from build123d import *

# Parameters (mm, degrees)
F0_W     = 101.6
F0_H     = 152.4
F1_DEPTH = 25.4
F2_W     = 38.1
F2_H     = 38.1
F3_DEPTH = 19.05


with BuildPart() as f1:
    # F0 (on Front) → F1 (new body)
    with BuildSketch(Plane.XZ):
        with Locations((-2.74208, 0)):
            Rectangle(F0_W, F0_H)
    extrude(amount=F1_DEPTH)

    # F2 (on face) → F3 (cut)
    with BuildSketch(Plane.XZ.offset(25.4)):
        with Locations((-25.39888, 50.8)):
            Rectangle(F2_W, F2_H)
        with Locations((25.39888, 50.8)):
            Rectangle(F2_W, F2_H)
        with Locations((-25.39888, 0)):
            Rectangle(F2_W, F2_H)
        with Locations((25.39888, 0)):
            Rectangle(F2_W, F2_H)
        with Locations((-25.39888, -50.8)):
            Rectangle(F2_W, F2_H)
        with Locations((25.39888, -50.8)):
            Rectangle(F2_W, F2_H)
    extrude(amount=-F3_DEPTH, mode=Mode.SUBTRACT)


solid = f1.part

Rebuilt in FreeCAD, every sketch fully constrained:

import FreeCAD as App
import Part
import Sketcher
Q = App.Units.Quantity


def add_polygon(sketch, points):
    """Adds a closed chain of lines whose ends are joined by coincident constraints."""
    first, n = sketch.GeometryCount, len(points)
    for a, b in zip(points, points[1:] + points[:1]):
        sketch.addGeometry(Part.LineSegment(App.Vector(*a, 0), App.Vector(*b, 0)), False)
    for i in range(n):
        sketch.addConstraint(Sketcher.Constraint("Coincident", first + i, 2, first + (i + 1) % n, 1))

doc = App.newDocument("Part")
params = doc.addObject("Spreadsheet::Sheet", "Params")
for row, (alias, value) in enumerate([
    ("sketch1_width", "4 in"),
    ("sketch1_height", "6 in"),
    ("pad1_length", "1 in"),
    ("sketch2_width", "1.5 in"),
    ("pocket1_length", "0.75 in"),
], start=1):
    params.set(f"A{row}", alias)
    params.set(f"B{row}", "=" + value)
    params.setAlias(f"B{row}", alias)

body = doc.addObject("PartDesign::Body", "Body")

# Sketch on XZ plane
sketch1 = body.newObject("Sketcher::SketchObject", "Sketch")
sketch1.AttachmentSupport = (doc.getObject("XZ_Plane"), [""])
sketch1.MapMode = "FlatFace"
add_polygon(sketch1, [(-54, 76), (-54, -76), (48, -76), (48, 76)])  # lines 0-3
sketch1.addConstraint([
    Sketcher.Constraint("Vertical", 0),
    Sketcher.Constraint("Horizontal", 1),
    Sketcher.Constraint("Vertical", 2),
    Sketcher.Constraint("Horizontal", 3),
    Sketcher.Constraint("DistanceX", 1, 1, 1, 2, Q("4 in")),
    Sketcher.Constraint("DistanceY", 0, 2, 0, 1, Q("6 in")),
    Sketcher.Constraint("DistanceY", 0, 2, -1, 1, Q("3 in")),
    Sketcher.Constraint("DistanceX", 0, 2, -1, 1, Q("53.54208 mm")),
])
sketch1.setExpression("Constraints[8]", "Params.sketch1_width")
sketch1.setExpression("Constraints[9]", "Params.sketch1_height")
pad1 = body.newObject("PartDesign::Pad", "Pad")
pad1.Profile = sketch1
pad1.setExpression("Length", "Params.pad1_length")

# Sketch on XZ plane
sketch2 = body.newObject("Sketcher::SketchObject", "Sketch001")
sketch2.AttachmentSupport = (doc.getObject("XZ_Plane"), [""])
sketch2.MapMode = "FlatFace"
sketch2.AttachmentOffset = App.Placement(App.Vector(0, 0, 1 * 25.4), App.Rotation())
add_polygon(sketch2, [(-44, 70), (-44, 32), (-6, 32), (-6, 70)])  # lines 0-3
add_polygon(sketch2, [(6, 70), (6, 32), (44, 32), (44, 70)])  # lines 4-7
add_polygon(sketch2, [(-44, 19), (-44, -19), (-6, -19), (-6, 19)])  # lines 8-11
add_polygon(sketch2, [(6, 19), (6, -19), (44, -19), (44, 19)])  # lines 12-15
add_polygon(sketch2, [(-44, -32), (-44, -70), (-6, -70), (-6, -32)])  # lines 16-19
add_polygon(sketch2, [(6, -32), (6, -70), (44, -70), (44, -32)])  # lines 20-23
sketch2.addConstraint([
    Sketcher.Constraint("Vertical", 0),
    Sketcher.Constraint("Horizontal", 1),
    Sketcher.Constraint("Vertical", 2),
    Sketcher.Constraint("Horizontal", 3),
    Sketcher.Constraint("Vertical", 4),
    Sketcher.Constraint("Horizontal", 5),
    Sketcher.Constraint("Vertical", 6),
    Sketcher.Constraint("Horizontal", 7),
    Sketcher.Constraint("Vertical", 8),
    Sketcher.Constraint("Horizontal", 9),
    Sketcher.Constraint("Vertical", 10),
    Sketcher.Constraint("Horizontal", 11),
    Sketcher.Constraint("Vertical", 12),
    Sketcher.Constraint("Horizontal", 13),
    Sketcher.Constraint("Vertical", 14),
    Sketcher.Constraint("Horizontal", 15),
    Sketcher.Constraint("Vertical", 16),
    Sketcher.Constraint("Horizontal", 17),
    Sketcher.Constraint("Vertical", 18),
    Sketcher.Constraint("Horizontal", 19),
    Sketcher.Constraint("Vertical", 20),
    Sketcher.Constraint("Horizontal", 21),
    Sketcher.Constraint("Vertical", 22),
    Sketcher.Constraint("Horizontal", 23),
    Sketcher.Constraint("Symmetric", 10, 2, 12, 2, -1, 1),
    Sketcher.Constraint("Symmetric", 8, 2, 14, 2, -1, 1),
    Sketcher.Constraint("Symmetric", 6, 2, 16, 2, -1, 1),
    Sketcher.Constraint("Symmetric", 4, 2, 18, 2, -1, 1),
    Sketcher.Constraint("Symmetric", 2, 2, 20, 2, -1, 1),
    Sketcher.Constraint("Symmetric", 0, 2, 22, 2, -1, 1),
    Sketcher.Constraint("Symmetric", 1, 2, 4, 2, -2),
    Sketcher.Constraint("Symmetric", 3, 2, 6, 2, -2),
    Sketcher.Constraint("Horizontal", 9, 2, 12, 2),
    Sketcher.Constraint("Vertical", 3, 2, 8, 2),
    Sketcher.Constraint("Vertical", 2, 2, 9, 2),
    Sketcher.Constraint("Equal", 23, 0),
    Sketcher.Constraint("Equal", 6, 8),
    Sketcher.Constraint("DistanceX", 1, 1, 1, 2, Q("1.5 in")),
    Sketcher.Constraint("DistanceY", 8, 2, 0, 2, Q("2 in")),
    Sketcher.Constraint("DistanceX", 0, 2, -1, 1, Q("44.44888 mm")),
])
sketch2.setExpression("Constraints[61]", "Params.sketch2_width")
pocket1 = body.newObject("PartDesign::Pocket", "Pocket")
pocket1.Profile = sketch2
pocket1.setExpression("Length", "Params.pocket1_length")

doc.recompute()
